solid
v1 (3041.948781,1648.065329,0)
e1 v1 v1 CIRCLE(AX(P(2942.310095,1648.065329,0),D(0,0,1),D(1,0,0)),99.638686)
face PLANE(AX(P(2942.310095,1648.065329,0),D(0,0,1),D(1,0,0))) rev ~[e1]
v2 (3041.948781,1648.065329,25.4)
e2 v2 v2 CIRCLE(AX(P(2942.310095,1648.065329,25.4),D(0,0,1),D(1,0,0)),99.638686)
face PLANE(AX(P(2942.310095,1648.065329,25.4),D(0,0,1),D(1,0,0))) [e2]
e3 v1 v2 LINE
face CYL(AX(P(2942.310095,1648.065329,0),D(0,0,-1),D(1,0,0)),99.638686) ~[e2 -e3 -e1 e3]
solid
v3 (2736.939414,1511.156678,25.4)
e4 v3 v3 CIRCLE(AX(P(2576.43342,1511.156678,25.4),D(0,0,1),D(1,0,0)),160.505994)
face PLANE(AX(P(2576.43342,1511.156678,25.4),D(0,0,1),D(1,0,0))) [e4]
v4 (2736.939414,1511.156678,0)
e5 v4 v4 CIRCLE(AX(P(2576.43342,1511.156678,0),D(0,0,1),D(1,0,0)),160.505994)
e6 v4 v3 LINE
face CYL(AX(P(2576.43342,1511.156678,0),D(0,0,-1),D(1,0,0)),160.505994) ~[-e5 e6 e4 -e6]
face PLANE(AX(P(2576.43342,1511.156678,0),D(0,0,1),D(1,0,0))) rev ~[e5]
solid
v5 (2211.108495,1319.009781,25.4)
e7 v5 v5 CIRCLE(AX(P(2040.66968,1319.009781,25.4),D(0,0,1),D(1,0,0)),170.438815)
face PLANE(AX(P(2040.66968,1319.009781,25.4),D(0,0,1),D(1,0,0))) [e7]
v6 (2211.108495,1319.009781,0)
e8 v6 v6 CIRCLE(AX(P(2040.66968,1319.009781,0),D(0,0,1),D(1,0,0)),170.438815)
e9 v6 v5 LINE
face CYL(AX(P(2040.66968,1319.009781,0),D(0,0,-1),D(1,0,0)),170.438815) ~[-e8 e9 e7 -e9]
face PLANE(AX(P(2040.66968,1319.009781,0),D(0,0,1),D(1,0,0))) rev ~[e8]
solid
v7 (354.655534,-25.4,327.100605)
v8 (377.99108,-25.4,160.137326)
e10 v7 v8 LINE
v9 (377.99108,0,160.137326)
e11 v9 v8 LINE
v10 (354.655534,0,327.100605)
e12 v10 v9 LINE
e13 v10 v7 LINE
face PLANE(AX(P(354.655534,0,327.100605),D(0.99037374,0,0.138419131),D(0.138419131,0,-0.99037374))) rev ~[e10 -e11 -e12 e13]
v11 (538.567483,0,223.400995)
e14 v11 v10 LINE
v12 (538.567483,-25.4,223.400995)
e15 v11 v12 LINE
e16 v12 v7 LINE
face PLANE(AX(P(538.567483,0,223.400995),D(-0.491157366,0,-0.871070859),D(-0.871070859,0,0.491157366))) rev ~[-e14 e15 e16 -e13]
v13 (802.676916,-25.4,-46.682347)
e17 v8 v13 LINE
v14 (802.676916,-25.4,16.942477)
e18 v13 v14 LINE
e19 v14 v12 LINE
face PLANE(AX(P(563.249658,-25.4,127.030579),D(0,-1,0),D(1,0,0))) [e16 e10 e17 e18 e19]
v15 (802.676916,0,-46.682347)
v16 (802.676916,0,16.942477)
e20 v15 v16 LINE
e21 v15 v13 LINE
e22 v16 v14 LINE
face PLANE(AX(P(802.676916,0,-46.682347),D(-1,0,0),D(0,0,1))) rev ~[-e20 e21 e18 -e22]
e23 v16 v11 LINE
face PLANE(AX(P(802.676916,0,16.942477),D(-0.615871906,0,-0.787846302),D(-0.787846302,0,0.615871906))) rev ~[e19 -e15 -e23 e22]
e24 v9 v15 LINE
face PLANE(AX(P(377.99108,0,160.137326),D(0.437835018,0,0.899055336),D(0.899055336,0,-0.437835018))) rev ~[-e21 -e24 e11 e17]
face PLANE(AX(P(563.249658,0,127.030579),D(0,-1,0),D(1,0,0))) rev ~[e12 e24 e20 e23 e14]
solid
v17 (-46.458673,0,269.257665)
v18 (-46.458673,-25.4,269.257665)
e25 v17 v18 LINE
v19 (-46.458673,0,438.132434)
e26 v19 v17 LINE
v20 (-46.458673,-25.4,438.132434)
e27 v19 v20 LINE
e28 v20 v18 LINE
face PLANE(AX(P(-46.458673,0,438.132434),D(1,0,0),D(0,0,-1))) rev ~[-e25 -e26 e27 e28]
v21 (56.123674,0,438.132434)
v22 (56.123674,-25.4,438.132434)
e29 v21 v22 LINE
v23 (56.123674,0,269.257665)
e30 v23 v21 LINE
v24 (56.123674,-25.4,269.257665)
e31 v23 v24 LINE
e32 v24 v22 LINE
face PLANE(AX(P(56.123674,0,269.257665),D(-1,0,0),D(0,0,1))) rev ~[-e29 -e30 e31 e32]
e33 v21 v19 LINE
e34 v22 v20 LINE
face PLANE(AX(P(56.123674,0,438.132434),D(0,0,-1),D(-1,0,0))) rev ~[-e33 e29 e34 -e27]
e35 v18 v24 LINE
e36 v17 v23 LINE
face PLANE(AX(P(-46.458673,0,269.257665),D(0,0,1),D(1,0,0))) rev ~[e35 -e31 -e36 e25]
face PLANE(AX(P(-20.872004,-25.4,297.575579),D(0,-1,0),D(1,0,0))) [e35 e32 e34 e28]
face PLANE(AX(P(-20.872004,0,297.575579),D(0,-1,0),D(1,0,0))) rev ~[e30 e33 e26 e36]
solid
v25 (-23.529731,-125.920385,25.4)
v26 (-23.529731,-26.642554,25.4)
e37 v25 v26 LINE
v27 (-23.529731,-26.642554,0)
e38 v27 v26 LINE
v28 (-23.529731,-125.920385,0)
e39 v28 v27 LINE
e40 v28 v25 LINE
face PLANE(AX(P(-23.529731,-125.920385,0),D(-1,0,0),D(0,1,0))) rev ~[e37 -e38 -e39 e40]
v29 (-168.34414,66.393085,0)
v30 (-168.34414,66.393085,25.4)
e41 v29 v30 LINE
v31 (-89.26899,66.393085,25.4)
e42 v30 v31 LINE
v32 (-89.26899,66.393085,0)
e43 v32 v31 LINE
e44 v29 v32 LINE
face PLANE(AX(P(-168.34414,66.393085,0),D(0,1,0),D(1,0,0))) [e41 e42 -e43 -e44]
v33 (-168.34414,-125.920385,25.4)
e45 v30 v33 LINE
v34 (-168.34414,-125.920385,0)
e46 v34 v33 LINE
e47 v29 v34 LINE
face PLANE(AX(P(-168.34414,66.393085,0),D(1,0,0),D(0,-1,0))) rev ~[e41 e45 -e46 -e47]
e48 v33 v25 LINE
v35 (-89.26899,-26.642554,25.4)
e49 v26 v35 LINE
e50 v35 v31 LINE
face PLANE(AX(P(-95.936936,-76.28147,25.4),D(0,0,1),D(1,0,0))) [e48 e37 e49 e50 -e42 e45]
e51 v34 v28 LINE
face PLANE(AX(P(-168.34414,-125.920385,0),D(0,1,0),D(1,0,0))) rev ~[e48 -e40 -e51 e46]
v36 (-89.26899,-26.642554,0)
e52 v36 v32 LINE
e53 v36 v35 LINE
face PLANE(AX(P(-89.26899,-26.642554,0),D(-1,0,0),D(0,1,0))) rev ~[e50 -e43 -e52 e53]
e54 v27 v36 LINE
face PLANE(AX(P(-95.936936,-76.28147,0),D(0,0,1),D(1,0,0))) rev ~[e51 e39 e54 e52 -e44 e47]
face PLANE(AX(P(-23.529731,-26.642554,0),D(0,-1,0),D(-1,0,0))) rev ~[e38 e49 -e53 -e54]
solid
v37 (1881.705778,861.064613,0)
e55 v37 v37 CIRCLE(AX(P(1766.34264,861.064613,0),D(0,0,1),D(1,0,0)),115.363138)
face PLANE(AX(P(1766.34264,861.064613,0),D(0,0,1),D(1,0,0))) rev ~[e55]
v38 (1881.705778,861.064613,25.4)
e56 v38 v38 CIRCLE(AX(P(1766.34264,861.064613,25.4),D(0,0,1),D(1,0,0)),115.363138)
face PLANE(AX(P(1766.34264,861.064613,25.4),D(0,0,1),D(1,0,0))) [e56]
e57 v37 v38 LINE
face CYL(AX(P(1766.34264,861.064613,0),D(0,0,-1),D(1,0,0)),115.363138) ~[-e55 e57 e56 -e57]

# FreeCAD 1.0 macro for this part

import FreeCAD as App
import Part
import Sketcher

V = App.Vector
Q = App.Units.Quantity


def add_polygon(sketch, points):
    """Adds a closed chain of lines whose ends are joined by coincident constraints."""
    first, n = sketch.GeometryCount, len(points)
    for a, b in zip(points, points[1:] + points[:1]):
        sketch.addGeometry(Part.LineSegment(App.Vector(*a, 0), App.Vector(*b, 0)), False)
    for i in range(n):
        sketch.addConstraint(Sketcher.Constraint("Coincident", first + i, 2, first + (i + 1) % n, 1))

doc = App.newDocument("Part")
body = doc.addObject("PartDesign::Body", "Body")

# Sketch on XY plane
sketch1 = body.newObject("Sketcher::SketchObject", "Sketch")
sketch1.AttachmentSupport = (doc.getObject("XY_Plane"), [""])
sketch1.MapMode = "FlatFace"
add_polygon(sketch1, [(-168.34414, -125.920385), (-23.529731, -125.920385), (-23.529731, -26.642554), (-89.26899, -26.642554), (-89.26899, 66.393085), (-168.34414, 66.393085)])  # lines 0-5
sketch1.addConstraint([
    Sketcher.Constraint("Horizontal", 0),
    Sketcher.Constraint("Vertical", 1),
    Sketcher.Constraint("Horizontal", 2),
    Sketcher.Constraint("Vertical", 3),
    Sketcher.Constraint("Horizontal", 4),
    Sketcher.Constraint("Vertical", 5),
    Sketcher.Constraint("DistanceX", 0, 1, 0, 2, 144.814409),
    Sketcher.Constraint("DistanceX", 2, 2, 2, 1, 65.739259),
    Sketcher.Constraint("DistanceY", 1, 1, 1, 2, 99.277831),
    Sketcher.Constraint("DistanceY", 3, 1, 3, 2, 93.035639),
    Sketcher.Constraint("DistanceX", 0, 2, -1, 1, 23.529731),
    Sketcher.Constraint("DistanceY", 0, 2, -1, 1, 125.920385),
])
pad1 = body.newObject("PartDesign::Pad", "Pad")
pad1.Profile = sketch1
pad1.Length = Q("1 in")
body2 = doc.addObject("PartDesign::Body", "Body001")

# Sketch on XZ plane
sketch2 = body2.newObject("Sketcher::SketchObject", "Sketch001")
sketch2.AttachmentSupport = (doc.getObject("XZ_Plane001"), [""])
sketch2.MapMode = "FlatFace"
add_polygon(sketch2, [(-46.458673, 438.132434), (-46.458673, 269.257665), (56.123674, 269.257665), (56.123674, 438.132434)])  # lines 0-3
sketch2.addConstraint([
    Sketcher.Constraint("Vertical", 0),
    Sketcher.Constraint("Horizontal", 1),
    Sketcher.Constraint("Vertical", 2),
    Sketcher.Constraint("Horizontal", 3),
    Sketcher.Constraint("DistanceY", 0, 2, 0, 1, 168.874769),
    Sketcher.Constraint("DistanceX", 1, 1, 1, 2, 102.582346),
    Sketcher.Constraint("DistanceX", 0, 2, -1, 1, 46.458673),
    Sketcher.Constraint("DistanceY", -1, 1, 0, 2, 269.257665),
])
pad2 = body2.newObject("PartDesign::Pad", "Pad001")
pad2.Profile = sketch2
pad2.Length = Q("1 in")
body3 = doc.addObject("PartDesign::Body", "Body002")

# Sketch on XZ plane
sketch3 = body3.newObject("Sketcher::SketchObject", "Sketch002")
sketch3.AttachmentSupport = (doc.getObject("XZ_Plane002"), [""])
sketch3.MapMode = "FlatFace"
add_polygon(sketch3, [(538.567483, 223.400995), (354.655534, 327.100605), (377.99108, 160.137326), (802.676916, -46.682347), (802.676916, 16.942477)])  # lines 0-4
sketch3.addConstraint([
    Sketcher.Constraint("Vertical", 3),
    Sketcher.Constraint("Distance", 4, 335.229641),
    Sketcher.Constraint("DistanceY", 3, 1, 3, 2, 63.624824),
    Sketcher.Constraint("DistanceX", -1, 1, 1, 2, 377.99108),
    Sketcher.Constraint("DistanceY", 1, 2, 0, 2, 166.963279),
    Sketcher.Constraint("DistanceX", 0, 2, 2, 2, 448.021382),
    Sketcher.Constraint("DistanceY", 2, 2, 0, 2, 373.782952),
    Sketcher.Constraint("DistanceY", 1, 2, 4, 2, 63.263669),
    Sketcher.Constraint("Distance", 1, 168.586133),
    Sketcher.Constraint("DistanceY", -1, 1, 0, 2, 327.100605),
])
pad3 = body3.newObject("PartDesign::Pad", "Pad002")
pad3.Profile = sketch3
pad3.Length = Q("1 in")
body4 = doc.addObject("PartDesign::Body", "Body003")
body4.AllowCompound = True

# Sketch on XY plane
sketch4 = body4.newObject("Sketcher::SketchObject", "Sketch003")
sketch4.AttachmentSupport = (doc.getObject("XY_Plane003"), [""])
sketch4.MapMode = "FlatFace"
sketch4.addGeometry([
    Part.Circle(V(2040.66968, 1319.009781, 0), V(0, 0, 1), 170.438815),
    Part.Circle(V(2576.43342, 1511.156678, 0), V(0, 0, 1), 160.505994),
    Part.Circle(V(1766.34264, 861.064613, 0), V(0, 0, 1), 115.363138),
    Part.Circle(V(2942.310095, 1648.065329, 0), V(0, 0, 1), 99.638686),
], False)
sketch4.addConstraint([
    Sketcher.Constraint("Diameter", 0, 340.87763),
    Sketcher.Constraint("Diameter", 1, 321.011988),
    Sketcher.Constraint("Diameter", 2, 230.726276),
    Sketcher.Constraint("Diameter", 3, 199.277372),
    Sketcher.Constraint("DistanceX", -1, 1, 0, 3, 2040.66968),
    Sketcher.Constraint("DistanceY", -1, 1, 0, 3, 1319.009781),
    Sketcher.Constraint("DistanceX", -1, 1, 1, 3, 2576.43342),
    Sketcher.Constraint("DistanceY", -1, 1, 1, 3, 1511.156678),
    Sketcher.Constraint("DistanceX", -1, 1, 2, 3, 1766.34264),
    Sketcher.Constraint("DistanceY", -1, 1, 3, 3, 1648.065329),
    Sketcher.Constraint("DistanceY", -1, 1, 2, 3, 861.064613),
    Sketcher.Constraint("DistanceX", -1, 1, 3, 3, 2942.310095),
])
pad4 = body4.newObject("PartDesign::Pad", "Pad003")
pad4.Profile = sketch4
pad4.Length = Q("1 in")

doc.recompute()
